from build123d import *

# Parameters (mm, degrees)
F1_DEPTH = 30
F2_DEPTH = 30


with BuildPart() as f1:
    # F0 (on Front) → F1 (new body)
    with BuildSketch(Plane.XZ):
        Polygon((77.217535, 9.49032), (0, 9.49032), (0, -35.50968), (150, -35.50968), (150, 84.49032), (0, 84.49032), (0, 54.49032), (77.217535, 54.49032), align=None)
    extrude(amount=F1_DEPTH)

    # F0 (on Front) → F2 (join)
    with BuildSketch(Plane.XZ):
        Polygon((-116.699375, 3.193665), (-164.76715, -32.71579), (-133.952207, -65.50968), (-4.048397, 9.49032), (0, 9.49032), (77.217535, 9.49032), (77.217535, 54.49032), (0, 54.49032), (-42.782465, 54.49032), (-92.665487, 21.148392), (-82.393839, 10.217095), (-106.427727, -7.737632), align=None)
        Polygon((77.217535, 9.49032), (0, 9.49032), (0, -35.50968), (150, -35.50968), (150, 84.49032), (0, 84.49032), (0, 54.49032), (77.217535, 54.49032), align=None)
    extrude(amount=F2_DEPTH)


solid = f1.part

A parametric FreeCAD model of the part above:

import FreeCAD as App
import Part
import Sketcher
Q = App.Units.Quantity


def add_polygon(sketch, points):
    """Adds a closed chain of lines whose ends are joined by coincident constraints."""
    first, n = sketch.GeometryCount, len(points)
    for a, b in zip(points, points[1:] + points[:1]):
        sketch.addGeometry(Part.LineSegment(App.Vector(*a, 0), App.Vector(*b, 0)), False)
    for i in range(n):
        sketch.addConstraint(Sketcher.Constraint("Coincident", first + i, 2, first + (i + 1) % n, 1))

doc = App.newDocument("Part")
body = doc.addObject("PartDesign::Body", "Body")

sketch1 = body.newObject("Sketcher::SketchObject", "Sketch")
sketch1.AttachmentSupport = (doc.getObject("XZ_Plane"), [""])
sketch1.MapMode = "FlatFace"
add_polygon(sketch1, [(77, 9), (0, 9), (0, -36), (150, -36), (150, 84), (0, 84), (0, 54), (77, 54)])
sketch1.addConstraint(Sketcher.Constraint("Horizontal", 0))
sketch1.addConstraint(Sketcher.Constraint("Vertical", 1))
sketch1.addConstraint(Sketcher.Constraint("Horizontal", 2))
sketch1.addConstraint(Sketcher.Constraint("Vertical", 3))
sketch1.addConstraint(Sketcher.Constraint("Horizontal", 4))
sketch1.addConstraint(Sketcher.Constraint("Vertical", 5))
sketch1.addConstraint(Sketcher.Constraint("Horizontal", 6))
sketch1.addConstraint(Sketcher.Constraint("Vertical", 7))
sketch1.addConstraint(Sketcher.Constraint("PointOnObject", 0, 2, -2))
sketch1.addConstraint(Sketcher.Constraint("PointOnObject", 4, 2, -2))
sketch1.addConstraint(Sketcher.Constraint("Equal", 1, 7))
sketch1.addConstraint(Sketcher.Constraint("DistanceX", 2, 1, 2, 2, 150.0))
sketch1.addConstraint(Sketcher.Constraint("DistanceY", 1, 2, 1, 1, 45.0))
sketch1.addConstraint(Sketcher.Constraint("DistanceY", 3, 1, 3, 2, 120.0))
sketch1.addConstraint(Sketcher.Constraint("DistanceX", 0, 2, 0, 1, 77.217535))
sketch1.addConstraint(Sketcher.Constraint("DistanceY", -1, 1, 0, 2, 9.49032))
pad1 = body.newObject("PartDesign::Pad", "Pad")
pad1.Profile = sketch1
pad1.Length = 30

sketch2 = body.newObject("Sketcher::SketchObject", "Sketch001")
sketch2.AttachmentSupport = (doc.getObject("XZ_Plane"), [""])
sketch2.MapMode = "FlatFace"
add_polygon(sketch2, [(-116.7, 3.2), (-164.8, -32.7), (-134, -65.5), (-4, 9.5), (0, 9.5), (0, -35.5), (150, -35.5), (150, 84.5), (0, 84.5), (0, 54.5), (-42.8, 54.5), (-92.7, 21.1), (-82.4, 10.2), (-106.4, -7.7)])
sketch2.addConstraint(Sketcher.Constraint("Horizontal", 3))
sketch2.addConstraint(Sketcher.Constraint("Vertical", 4))
sketch2.addConstraint(Sketcher.Constraint("Horizontal", 5))
sketch2.addConstraint(Sketcher.Constraint("Vertical", 6))
sketch2.addConstraint(Sketcher.Constraint("Horizontal", 7))
sketch2.addConstraint(Sketcher.Constraint("Vertical", 8))
sketch2.addConstraint(Sketcher.Constraint("Horizontal", 9))
sketch2.addConstraint(Sketcher.Constraint("PointOnObject", 3, 2, -2))
sketch2.addConstraint(Sketcher.Constraint("PointOnObject", 7, 2, -2))
sketch2.addConstraint(Sketcher.Constraint("Parallel", 1, 11))
sketch2.addConstraint(Sketcher.Constraint("Parallel", 0, 12))
sketch2.addConstraint(Sketcher.Constraint("Parallel", 11, 13))
sketch2.addConstraint(Sketcher.Constraint("Equal", 0, 10))
sketch2.addConstraint(Sketcher.Constraint("Equal", 11, 13))
sketch2.addConstraint(Sketcher.Constraint("DistanceX", 5, 1, 5, 2, 150.0))
sketch2.addConstraint(Sketcher.Constraint("DistanceY", 4, 2, 4, 1, 45.0))
sketch2.addConstraint(Sketcher.Constraint("DistanceY", 6, 1, 6, 2, 120.0))
sketch2.addConstraint(Sketcher.Constraint("DistanceY", 8, 2, 8, 1, 30.0))
sketch2.addConstraint(Sketcher.Constraint("Angle", 2, Q("30 deg")))
sketch2.addConstraint(Sketcher.Constraint("Distance", 0, 60.0))
sketch2.addConstraint(Sketcher.Constraint("Distance", 1, 44.999999))
sketch2.addConstraint(Sketcher.Constraint("Distance", 2, 150.0))
sketch2.addConstraint(Sketcher.Constraint("Distance", 11, 15.0))
sketch2.addConstraint(Sketcher.Constraint("Distance", 12, 30.0))
sketch2.addConstraint(Sketcher.Constraint("DistanceX", 3, 1, 3, 2, 4.048397))
sketch2.addConstraint(Sketcher.Constraint("DistanceX", 9, 2, 9, 1, 42.782465))
sketch2.addConstraint(Sketcher.Constraint("DistanceX", 0, 2, -1, 1, 164.76715))
sketch2.addConstraint(Sketcher.Constraint("DistanceY", 0, 2, -1, 1, 32.71579))
pad2 = body.newObject("PartDesign::Pad", "Pad001")
pad2.Profile = sketch2
pad2.Length = 30

doc.recompute()
